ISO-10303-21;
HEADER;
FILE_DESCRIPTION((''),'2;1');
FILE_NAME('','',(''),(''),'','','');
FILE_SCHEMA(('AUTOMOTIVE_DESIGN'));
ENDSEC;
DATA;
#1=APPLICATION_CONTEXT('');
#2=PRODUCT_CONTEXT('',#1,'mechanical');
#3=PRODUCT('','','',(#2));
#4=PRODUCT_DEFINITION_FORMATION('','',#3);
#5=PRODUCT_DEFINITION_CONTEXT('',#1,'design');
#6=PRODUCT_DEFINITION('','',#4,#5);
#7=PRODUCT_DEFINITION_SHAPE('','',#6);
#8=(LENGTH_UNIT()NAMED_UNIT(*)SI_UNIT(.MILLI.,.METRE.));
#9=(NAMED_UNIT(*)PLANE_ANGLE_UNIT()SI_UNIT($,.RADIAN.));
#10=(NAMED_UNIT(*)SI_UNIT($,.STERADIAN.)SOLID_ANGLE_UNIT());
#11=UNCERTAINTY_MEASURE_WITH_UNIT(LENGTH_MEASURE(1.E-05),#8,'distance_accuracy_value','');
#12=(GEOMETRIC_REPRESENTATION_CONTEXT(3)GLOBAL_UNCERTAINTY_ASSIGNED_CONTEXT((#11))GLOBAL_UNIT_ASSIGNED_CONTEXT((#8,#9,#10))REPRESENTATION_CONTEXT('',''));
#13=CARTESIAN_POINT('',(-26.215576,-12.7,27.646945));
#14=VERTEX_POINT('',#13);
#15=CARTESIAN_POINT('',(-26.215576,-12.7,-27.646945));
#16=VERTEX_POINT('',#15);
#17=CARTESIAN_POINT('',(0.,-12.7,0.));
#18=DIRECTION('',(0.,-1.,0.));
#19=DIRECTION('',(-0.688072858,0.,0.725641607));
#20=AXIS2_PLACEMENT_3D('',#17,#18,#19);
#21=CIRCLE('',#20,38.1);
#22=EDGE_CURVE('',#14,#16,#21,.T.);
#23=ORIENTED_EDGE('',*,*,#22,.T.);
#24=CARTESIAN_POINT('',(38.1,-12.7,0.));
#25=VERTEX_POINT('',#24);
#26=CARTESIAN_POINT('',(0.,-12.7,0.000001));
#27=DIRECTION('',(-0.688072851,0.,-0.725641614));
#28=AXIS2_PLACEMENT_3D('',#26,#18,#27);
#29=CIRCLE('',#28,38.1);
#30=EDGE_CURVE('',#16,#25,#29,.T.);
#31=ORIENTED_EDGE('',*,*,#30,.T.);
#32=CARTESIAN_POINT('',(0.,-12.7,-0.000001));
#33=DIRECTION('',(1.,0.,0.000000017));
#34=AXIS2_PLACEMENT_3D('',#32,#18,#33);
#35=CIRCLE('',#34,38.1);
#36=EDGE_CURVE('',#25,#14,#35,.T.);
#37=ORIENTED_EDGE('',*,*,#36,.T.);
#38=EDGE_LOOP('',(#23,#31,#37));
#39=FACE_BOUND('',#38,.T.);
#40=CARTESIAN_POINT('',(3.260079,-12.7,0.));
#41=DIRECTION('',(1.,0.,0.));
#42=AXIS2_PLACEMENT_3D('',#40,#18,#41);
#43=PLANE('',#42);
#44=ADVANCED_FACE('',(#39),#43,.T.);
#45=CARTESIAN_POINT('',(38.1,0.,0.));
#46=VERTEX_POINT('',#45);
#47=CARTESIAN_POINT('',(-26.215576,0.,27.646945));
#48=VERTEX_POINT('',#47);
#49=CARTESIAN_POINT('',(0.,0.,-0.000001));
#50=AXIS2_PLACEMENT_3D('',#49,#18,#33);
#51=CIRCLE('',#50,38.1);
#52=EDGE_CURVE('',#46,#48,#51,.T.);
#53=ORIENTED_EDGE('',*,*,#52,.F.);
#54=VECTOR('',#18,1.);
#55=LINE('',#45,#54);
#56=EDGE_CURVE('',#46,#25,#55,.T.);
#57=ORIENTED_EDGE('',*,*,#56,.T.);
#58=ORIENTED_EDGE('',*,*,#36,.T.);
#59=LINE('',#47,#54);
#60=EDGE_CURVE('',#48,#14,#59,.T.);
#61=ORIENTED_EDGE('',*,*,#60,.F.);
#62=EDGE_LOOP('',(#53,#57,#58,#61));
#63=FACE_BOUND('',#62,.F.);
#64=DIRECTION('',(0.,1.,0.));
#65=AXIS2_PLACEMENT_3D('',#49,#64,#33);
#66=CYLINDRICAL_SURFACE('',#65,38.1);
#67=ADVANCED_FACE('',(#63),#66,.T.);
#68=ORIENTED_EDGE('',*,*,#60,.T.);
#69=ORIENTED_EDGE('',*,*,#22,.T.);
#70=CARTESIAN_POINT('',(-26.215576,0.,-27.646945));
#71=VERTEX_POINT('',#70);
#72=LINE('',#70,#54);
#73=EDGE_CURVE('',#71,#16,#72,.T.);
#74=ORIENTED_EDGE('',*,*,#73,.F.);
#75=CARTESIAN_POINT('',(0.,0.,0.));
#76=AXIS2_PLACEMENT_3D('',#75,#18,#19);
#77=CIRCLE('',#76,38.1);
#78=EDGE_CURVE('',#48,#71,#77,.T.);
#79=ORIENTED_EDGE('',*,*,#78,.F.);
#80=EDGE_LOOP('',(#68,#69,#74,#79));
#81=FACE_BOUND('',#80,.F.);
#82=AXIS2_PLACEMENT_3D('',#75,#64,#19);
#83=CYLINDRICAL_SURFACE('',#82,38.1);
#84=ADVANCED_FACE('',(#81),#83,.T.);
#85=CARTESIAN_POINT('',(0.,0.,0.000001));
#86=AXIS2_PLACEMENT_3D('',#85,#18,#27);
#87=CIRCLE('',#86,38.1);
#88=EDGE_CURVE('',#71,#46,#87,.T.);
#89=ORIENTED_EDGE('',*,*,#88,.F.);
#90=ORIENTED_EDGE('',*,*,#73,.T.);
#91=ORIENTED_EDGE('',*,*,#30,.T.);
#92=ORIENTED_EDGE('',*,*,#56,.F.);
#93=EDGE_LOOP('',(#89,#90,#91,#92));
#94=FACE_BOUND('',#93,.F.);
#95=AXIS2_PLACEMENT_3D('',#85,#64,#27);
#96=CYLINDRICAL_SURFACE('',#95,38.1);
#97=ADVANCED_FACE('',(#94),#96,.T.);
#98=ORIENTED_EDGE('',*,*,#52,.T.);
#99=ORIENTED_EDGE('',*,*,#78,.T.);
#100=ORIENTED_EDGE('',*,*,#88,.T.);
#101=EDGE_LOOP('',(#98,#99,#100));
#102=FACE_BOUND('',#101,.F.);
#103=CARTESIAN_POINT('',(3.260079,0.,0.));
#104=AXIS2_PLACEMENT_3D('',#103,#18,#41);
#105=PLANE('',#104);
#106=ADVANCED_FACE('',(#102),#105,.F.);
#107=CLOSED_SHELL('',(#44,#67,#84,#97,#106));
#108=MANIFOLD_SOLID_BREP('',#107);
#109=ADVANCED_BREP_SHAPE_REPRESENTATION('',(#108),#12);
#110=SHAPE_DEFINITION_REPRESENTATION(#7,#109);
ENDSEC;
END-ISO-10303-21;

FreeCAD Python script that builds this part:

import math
import FreeCAD as App
import Part
import Sketcher
Q = App.Units.Quantity

doc = App.newDocument("Part")
params = doc.addObject("Spreadsheet::Sheet", "Params")
for row, (alias, value) in enumerate([
    ("sketch1_radius", "1.5 in"),
    ("pad1_length", "0.5 in"),
], start=1):
    params.set(f"A{row}", alias)
    params.set(f"B{row}", "=" + value)
    params.setAlias(f"B{row}", alias)

body = doc.addObject("PartDesign::Body", "Body")

sketch1 = body.newObject("Sketcher::SketchObject", "Sketch")
sketch1.AttachmentSupport = (doc.getObject("XZ_Plane"), [""])
sketch1.MapMode = "FlatFace"
sketch1.addGeometry([
    Part.ArcOfCircle(Part.Circle(App.Vector(0, 0, 0), App.Vector(0, 0, 1), 38), math.radians(-133), math.radians(0)),
    Part.ArcOfCircle(Part.Circle(App.Vector(0, 0, 0), App.Vector(0, 0, 1), 38), math.radians(0), math.radians(133)),
    Part.ArcOfCircle(Part.Circle(App.Vector(0, 0, 0), App.Vector(0, 0, 1), 38), math.radians(133), math.radians(227)),
], False)
sketch1.addConstraint([
    Sketcher.Constraint("Tangent", 0, 2, 1, 1),
    Sketcher.Constraint("Tangent", 1, 2, 2, 1),
    Sketcher.Constraint("Tangent", 2, 2, 0, 1),
    Sketcher.Constraint("Coincident", 0, 3, -1, 1),
    Sketcher.Constraint("PointOnObject", 0, 2, -1),
    Sketcher.Constraint("Vertical", 1, 2, 2, 2),
    Sketcher.Constraint("Radius", 0, Q("1.5 in")),
    Sketcher.Constraint("DistanceY", 2, 2, 1, 2, Q("55.29389 mm")),
])
sketch1.setExpression("Constraints[6]", "Params.sketch1_radius")
pad1 = body.newObject("PartDesign::Pad", "Pad")
pad1.Profile = sketch1
pad1.setExpression("Length", "Params.pad1_length")

doc.recompute()
